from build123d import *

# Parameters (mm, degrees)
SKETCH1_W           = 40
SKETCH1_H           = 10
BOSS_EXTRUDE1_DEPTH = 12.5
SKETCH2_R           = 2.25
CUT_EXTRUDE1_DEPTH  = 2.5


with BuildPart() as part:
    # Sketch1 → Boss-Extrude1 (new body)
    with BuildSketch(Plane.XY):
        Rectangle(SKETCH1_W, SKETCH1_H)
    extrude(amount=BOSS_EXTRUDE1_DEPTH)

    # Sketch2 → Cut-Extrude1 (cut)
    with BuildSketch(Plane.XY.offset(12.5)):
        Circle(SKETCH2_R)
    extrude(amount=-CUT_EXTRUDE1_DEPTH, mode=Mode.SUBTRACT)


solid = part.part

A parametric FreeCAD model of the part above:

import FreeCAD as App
import Part
import Sketcher

V = App.Vector


def add_polygon(sketch, points):
    """Adds a closed chain of lines whose ends are joined by coincident constraints."""
    first, n = sketch.GeometryCount, len(points)
    for a, b in zip(points, points[1:] + points[:1]):
        sketch.addGeometry(Part.LineSegment(App.Vector(*a, 0), App.Vector(*b, 0)), False)
    for i in range(n):
        sketch.addConstraint(Sketcher.Constraint("Coincident", first + i, 2, first + (i + 1) % n, 1))

doc = App.newDocument("Part")
body = doc.addObject("PartDesign::Body", "Body")

sketch1 = body.newObject("Sketcher::SketchObject", "Sketch")
sketch1.AttachmentSupport = (doc.getObject("XY_Plane"), [""])
sketch1.MapMode = "FlatFace"
add_polygon(sketch1, [(-20, 5), (-20, -5), (20, -5), (20, 5)])
sketch1.addConstraint([
    Sketcher.Constraint("Vertical", 0),
    Sketcher.Constraint("Horizontal", 1),
    Sketcher.Constraint("Vertical", 2),
    Sketcher.Constraint("Horizontal", 3),
    Sketcher.Constraint("Symmetric", 0, 2, 2, 2, -1, 1),
    Sketcher.Constraint("DistanceX", 1, 1, 1, 2, 40.0),
    Sketcher.Constraint("DistanceY", 0, 2, 0, 1, 10.0),
])
pad1 = body.newObject("PartDesign::Pad", "Pad")
pad1.Profile = sketch1
pad1.Length = 12.5

sketch2 = body.newObject("Sketcher::SketchObject", "Sketch001")
sketch2.AttachmentSupport = (doc.getObject("XY_Plane"), [""])
sketch2.MapMode = "FlatFace"
sketch2.AttachmentOffset = App.Placement(V(0, 0, 12.5), App.Rotation())
sketch2.addGeometry(Part.Circle(V(0, 0, 0), V(0, 0, 1), 2.25), False)
sketch2.addConstraint([
    Sketcher.Constraint("Coincident", 0, 3, -1, 1),
    Sketcher.Constraint("Diameter", 0, 4.5),
])
pocket1 = body.newObject("PartDesign::Pocket", "Pocket")
pocket1.Profile = sketch2
pocket1.Length = 2.5

doc.recompute()
